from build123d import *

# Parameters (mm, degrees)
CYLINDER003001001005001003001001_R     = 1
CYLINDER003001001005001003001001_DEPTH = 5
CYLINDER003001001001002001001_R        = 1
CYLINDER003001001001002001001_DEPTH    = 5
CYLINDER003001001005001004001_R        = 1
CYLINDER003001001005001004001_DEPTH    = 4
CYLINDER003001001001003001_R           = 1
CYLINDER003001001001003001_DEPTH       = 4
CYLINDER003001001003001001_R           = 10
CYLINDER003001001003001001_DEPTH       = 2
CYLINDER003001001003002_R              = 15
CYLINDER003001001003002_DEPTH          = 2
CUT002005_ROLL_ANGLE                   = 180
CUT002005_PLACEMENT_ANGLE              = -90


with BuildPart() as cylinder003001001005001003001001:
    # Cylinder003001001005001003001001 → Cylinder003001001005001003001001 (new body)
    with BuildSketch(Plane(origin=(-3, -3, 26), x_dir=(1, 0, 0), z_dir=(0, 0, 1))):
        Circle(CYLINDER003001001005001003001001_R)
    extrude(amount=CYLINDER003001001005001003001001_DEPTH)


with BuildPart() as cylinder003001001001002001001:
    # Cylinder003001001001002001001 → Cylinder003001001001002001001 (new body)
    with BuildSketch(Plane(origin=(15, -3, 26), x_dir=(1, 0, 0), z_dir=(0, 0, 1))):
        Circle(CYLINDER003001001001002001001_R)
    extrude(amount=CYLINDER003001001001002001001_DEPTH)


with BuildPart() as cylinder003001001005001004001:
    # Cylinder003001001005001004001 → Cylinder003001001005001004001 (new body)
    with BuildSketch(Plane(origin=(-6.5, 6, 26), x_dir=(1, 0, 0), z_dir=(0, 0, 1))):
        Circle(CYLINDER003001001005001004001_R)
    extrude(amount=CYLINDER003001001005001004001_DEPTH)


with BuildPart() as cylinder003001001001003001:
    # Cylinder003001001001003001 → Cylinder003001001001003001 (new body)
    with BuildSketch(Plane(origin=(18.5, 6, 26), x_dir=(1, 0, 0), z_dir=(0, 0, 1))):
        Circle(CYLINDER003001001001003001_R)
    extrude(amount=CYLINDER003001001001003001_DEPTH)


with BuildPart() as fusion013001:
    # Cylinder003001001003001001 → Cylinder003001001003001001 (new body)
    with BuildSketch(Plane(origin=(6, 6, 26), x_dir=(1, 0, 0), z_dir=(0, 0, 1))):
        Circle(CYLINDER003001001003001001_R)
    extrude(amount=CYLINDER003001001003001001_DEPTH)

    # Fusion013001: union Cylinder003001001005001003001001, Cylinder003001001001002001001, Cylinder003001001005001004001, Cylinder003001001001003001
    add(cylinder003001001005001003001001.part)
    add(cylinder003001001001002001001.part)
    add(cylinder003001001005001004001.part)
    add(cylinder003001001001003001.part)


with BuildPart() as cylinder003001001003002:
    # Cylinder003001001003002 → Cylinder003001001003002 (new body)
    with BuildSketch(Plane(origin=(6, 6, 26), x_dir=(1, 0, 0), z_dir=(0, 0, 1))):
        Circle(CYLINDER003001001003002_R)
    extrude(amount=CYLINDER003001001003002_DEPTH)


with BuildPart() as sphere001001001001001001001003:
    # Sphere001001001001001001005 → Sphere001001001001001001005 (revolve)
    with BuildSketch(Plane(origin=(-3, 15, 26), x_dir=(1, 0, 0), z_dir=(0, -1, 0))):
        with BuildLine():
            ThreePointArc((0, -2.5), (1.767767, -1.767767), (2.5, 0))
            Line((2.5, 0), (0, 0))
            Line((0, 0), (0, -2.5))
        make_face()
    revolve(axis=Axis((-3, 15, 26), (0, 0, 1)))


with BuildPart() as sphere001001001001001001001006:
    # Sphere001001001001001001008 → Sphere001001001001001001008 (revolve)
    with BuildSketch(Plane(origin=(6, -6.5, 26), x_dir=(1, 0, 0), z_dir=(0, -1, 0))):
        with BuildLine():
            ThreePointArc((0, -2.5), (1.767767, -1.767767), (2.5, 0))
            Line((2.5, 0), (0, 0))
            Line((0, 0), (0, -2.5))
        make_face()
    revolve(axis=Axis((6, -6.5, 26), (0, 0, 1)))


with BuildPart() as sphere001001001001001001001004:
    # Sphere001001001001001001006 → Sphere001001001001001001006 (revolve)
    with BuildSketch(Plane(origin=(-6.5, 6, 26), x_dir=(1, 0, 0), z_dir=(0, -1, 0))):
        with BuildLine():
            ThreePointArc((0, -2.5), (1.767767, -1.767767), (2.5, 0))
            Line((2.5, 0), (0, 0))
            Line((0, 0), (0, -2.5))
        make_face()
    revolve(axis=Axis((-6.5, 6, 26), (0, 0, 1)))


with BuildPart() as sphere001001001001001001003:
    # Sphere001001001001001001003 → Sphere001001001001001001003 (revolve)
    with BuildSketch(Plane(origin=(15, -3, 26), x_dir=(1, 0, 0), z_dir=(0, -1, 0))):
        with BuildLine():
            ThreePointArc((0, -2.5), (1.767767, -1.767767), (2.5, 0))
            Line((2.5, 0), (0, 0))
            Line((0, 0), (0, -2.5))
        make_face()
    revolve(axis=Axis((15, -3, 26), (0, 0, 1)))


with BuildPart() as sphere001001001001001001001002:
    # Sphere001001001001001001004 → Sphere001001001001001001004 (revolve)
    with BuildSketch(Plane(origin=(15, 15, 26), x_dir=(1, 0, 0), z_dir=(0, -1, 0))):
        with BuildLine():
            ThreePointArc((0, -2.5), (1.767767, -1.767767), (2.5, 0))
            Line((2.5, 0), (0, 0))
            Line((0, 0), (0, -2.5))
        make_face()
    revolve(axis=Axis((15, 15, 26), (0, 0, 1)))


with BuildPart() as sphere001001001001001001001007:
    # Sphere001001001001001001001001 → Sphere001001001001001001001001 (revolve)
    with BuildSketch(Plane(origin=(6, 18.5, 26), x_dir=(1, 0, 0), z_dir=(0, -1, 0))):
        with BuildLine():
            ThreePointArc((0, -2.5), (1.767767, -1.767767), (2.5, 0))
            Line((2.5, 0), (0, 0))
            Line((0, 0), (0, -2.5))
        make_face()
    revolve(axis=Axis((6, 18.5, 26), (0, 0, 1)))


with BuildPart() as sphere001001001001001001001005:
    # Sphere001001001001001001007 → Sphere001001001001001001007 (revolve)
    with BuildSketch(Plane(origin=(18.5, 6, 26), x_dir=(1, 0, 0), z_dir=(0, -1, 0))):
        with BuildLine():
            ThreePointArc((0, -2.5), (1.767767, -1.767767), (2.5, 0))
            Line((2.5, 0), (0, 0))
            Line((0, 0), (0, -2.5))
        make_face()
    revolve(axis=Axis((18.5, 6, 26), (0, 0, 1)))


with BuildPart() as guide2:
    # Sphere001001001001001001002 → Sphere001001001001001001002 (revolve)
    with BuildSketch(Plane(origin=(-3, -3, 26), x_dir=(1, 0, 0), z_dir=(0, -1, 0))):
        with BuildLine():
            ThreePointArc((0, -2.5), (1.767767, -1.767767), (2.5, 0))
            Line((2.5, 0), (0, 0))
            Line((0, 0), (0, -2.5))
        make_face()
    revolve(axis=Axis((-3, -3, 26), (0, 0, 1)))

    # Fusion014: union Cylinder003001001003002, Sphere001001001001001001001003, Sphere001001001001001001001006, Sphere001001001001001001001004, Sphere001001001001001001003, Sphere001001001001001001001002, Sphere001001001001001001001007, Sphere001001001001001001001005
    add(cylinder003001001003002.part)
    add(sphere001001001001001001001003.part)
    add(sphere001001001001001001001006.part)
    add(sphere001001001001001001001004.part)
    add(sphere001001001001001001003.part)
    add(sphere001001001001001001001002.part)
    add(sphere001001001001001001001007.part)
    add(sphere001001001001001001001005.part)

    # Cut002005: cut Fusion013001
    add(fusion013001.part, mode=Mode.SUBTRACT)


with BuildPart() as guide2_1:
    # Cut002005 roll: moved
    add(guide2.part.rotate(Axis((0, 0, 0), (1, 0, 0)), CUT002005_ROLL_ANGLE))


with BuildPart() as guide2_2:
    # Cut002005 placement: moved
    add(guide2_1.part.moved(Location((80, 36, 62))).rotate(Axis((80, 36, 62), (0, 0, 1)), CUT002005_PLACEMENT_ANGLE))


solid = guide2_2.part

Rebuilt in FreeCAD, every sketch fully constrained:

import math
import FreeCAD as App
import Part
import Sketcher
Q = App.Units.Quantity

doc = App.newDocument("Part")
body = doc.addObject("PartDesign::Body", "Body")

# Sketch on XY plane
sketch1 = doc.addObject("Sketcher::SketchObject", "Sketch")
body.addObject(sketch1)
sketch1.AttachmentSupport = (doc.XY_Plane, [""])
sketch1.MapMode = "FlatFace"
sketch1.AttachmentOffset = App.Placement(App.Vector(0, 0, 26), App.Rotation())
sketch1.addGeometry(Part.Circle(App.Vector(-3, -3, 0), App.Vector(0, 0, 1), 1), False)
sketch1.addConstraint([
    Sketcher.Constraint("Diameter", 0, Q("2 mm")),
    Sketcher.Constraint("DistanceX", 0, 3, -1, 1, Q("3 mm")),
    Sketcher.Constraint("DistanceY", 0, 3, -1, 1, Q("3 mm")),
])
pad1 = doc.addObject("PartDesign::Pad", "Pad")
body.addObject(pad1)
pad1.Profile = sketch1
pad1.Length = 5
body2 = doc.addObject("PartDesign::Body", "Body001")

# Sketch on XY plane
sketch2 = doc.addObject("Sketcher::SketchObject", "Sketch001")
body2.addObject(sketch2)
sketch2.AttachmentSupport = (doc.getObject("XY_Plane001"), [""])
sketch2.MapMode = "FlatFace"
sketch2.AttachmentOffset = App.Placement(App.Vector(0, 0, 26), App.Rotation())
sketch2.addGeometry(Part.Circle(App.Vector(15, -3, 0), App.Vector(0, 0, 1), 1), False)
sketch2.addConstraint([
    Sketcher.Constraint("Diameter", 0, Q("2 mm")),
    Sketcher.Constraint("DistanceX", -1, 1, 0, 3, Q("15 mm")),
    Sketcher.Constraint("DistanceY", 0, 3, -1, 1, Q("3 mm")),
])
pad2 = doc.addObject("PartDesign::Pad", "Pad001")
body2.addObject(pad2)
pad2.Profile = sketch2
pad2.Length = 5
body3 = doc.addObject("PartDesign::Body", "Body002")

# Sketch on XY plane
sketch3 = doc.addObject("Sketcher::SketchObject", "Sketch002")
body3.addObject(sketch3)
sketch3.AttachmentSupport = (doc.getObject("XY_Plane002"), [""])
sketch3.MapMode = "FlatFace"
sketch3.AttachmentOffset = App.Placement(App.Vector(0, 0, 26), App.Rotation())
sketch3.addGeometry(Part.Circle(App.Vector(-6.5, 6, 0), App.Vector(0, 0, 1), 1), False)
sketch3.addConstraint([
    Sketcher.Constraint("Diameter", 0, Q("2 mm")),
    Sketcher.Constraint("DistanceY", -1, 1, 0, 3, Q("6 mm")),
    Sketcher.Constraint("DistanceX", 0, 3, -1, 1, Q("6.5 mm")),
])
pad3 = doc.addObject("PartDesign::Pad", "Pad002")
body3.addObject(pad3)
pad3.Profile = sketch3
pad3.Length = 4
body4 = doc.addObject("PartDesign::Body", "Body003")

# Sketch on XY plane
sketch4 = doc.addObject("Sketcher::SketchObject", "Sketch003")
body4.addObject(sketch4)
sketch4.AttachmentSupport = (doc.getObject("XY_Plane003"), [""])
sketch4.MapMode = "FlatFace"
sketch4.AttachmentOffset = App.Placement(App.Vector(0, 0, 26), App.Rotation())
sketch4.addGeometry(Part.Circle(App.Vector(18.5, 6, 0), App.Vector(0, 0, 1), 1), False)
sketch4.addConstraint([
    Sketcher.Constraint("Diameter", 0, Q("2 mm")),
    Sketcher.Constraint("DistanceY", -1, 1, 0, 3, Q("6 mm")),
    Sketcher.Constraint("DistanceX", -1, 1, 0, 3, Q("18.5 mm")),
])
pad4 = doc.addObject("PartDesign::Pad", "Pad003")
body4.addObject(pad4)
pad4.Profile = sketch4
pad4.Length = 4
body5 = doc.addObject("PartDesign::Body", "Body004")
body5.AllowCompound = True

# Sketch on XY plane
sketch5 = doc.addObject("Sketcher::SketchObject", "Sketch004")
body5.addObject(sketch5)
sketch5.AttachmentSupport = (doc.getObject("XY_Plane004"), [""])
sketch5.MapMode = "FlatFace"
sketch5.AttachmentOffset = App.Placement(App.Vector(0, 0, 26), App.Rotation())
sketch5.addGeometry(Part.Circle(App.Vector(6, 6, 0), App.Vector(0, 0, 1), 10), False)
sketch5.addConstraint([
    Sketcher.Constraint("Diameter", 0, Q("20 mm")),
    Sketcher.Constraint("DistanceX", -1, 1, 0, 3, Q("6 mm")),
    Sketcher.Constraint("DistanceY", -1, 1, 0, 3, Q("6 mm")),
])
pad5 = doc.addObject("PartDesign::Pad", "Pad004")
body5.addObject(pad5)
pad5.Profile = sketch5
pad5.Length = 2
doc.recompute()

boolean = doc.addObject("PartDesign::Boolean", "Boolean")
body5.addObject(boolean)
boolean.Type = "Fuse"
boolean.addObjects([body])
doc.recompute()

boolean2 = doc.addObject("PartDesign::Boolean", "Boolean001")
body5.addObject(boolean2)
boolean2.Type = "Fuse"
boolean2.addObjects([body2])
doc.recompute()

boolean3 = doc.addObject("PartDesign::Boolean", "Boolean002")
body5.addObject(boolean3)
boolean3.Type = "Fuse"
boolean3.addObjects([body3])
doc.recompute()

boolean4 = doc.addObject("PartDesign::Boolean", "Boolean003")
body5.addObject(boolean4)
boolean4.Type = "Fuse"
boolean4.addObjects([body4])
body6 = doc.addObject("PartDesign::Body", "Body005")

# Sketch on XY plane
sketch6 = doc.addObject("Sketcher::SketchObject", "Sketch005")
body6.addObject(sketch6)
sketch6.AttachmentSupport = (doc.getObject("XY_Plane005"), [""])
sketch6.MapMode = "FlatFace"
sketch6.AttachmentOffset = App.Placement(App.Vector(0, 0, 26), App.Rotation())
sketch6.addGeometry(Part.Circle(App.Vector(6, 6, 0), App.Vector(0, 0, 1), 15), False)
sketch6.addConstraint([
    Sketcher.Constraint("Diameter", 0, Q("30 mm")),
    Sketcher.Constraint("DistanceX", -1, 1, 0, 3, Q("6 mm")),
    Sketcher.Constraint("DistanceY", -1, 1, 0, 3, Q("6 mm")),
])
pad6 = doc.addObject("PartDesign::Pad", "Pad005")
body6.addObject(pad6)
pad6.Profile = sketch6
pad6.Length = 2
body7 = doc.addObject("PartDesign::Body", "Body006")

# Sketch on XZ plane
sketch7 = doc.addObject("Sketcher::SketchObject", "Sketch006")
body7.addObject(sketch7)
sketch7.AttachmentSupport = (doc.getObject("XZ_Plane006"), [""])
sketch7.MapMode = "FlatFace"
sketch7.AttachmentOffset = App.Placement(App.Vector(0, 0, -15), App.Rotation())
sketch7.addGeometry([
    Part.ArcOfCircle(Part.Circle(App.Vector(-3, 26, 0), App.Vector(0, 0, 1), 2.5), math.radians(-90), math.radians(0)),
    Part.LineSegment(App.Vector(-0.5, 26, 0), App.Vector(-3, 26, 0)),
    Part.LineSegment(App.Vector(-3, 26, 0), App.Vector(-3, 23.5, 0)),
], False)
sketch7.addGeometry(Part.LineSegment(App.Vector(-3, 23.5, 0), App.Vector(-3, 26, 0)), True)  # axis
sketch7.addConstraint([
    Sketcher.Constraint("Coincident", 0, 2, 1, 1),
    Sketcher.Constraint("Coincident", 1, 2, 2, 1),
    Sketcher.Constraint("Coincident", 2, 2, 0, 1),
    Sketcher.Constraint("Horizontal", 1),
    Sketcher.Constraint("Vertical", 2),
    Sketcher.Constraint("Vertical", 3),
    Sketcher.Constraint("Coincident", 1, 2, 0, 3),
    Sketcher.Constraint("Coincident", 3, 1, 2, 2),
    Sketcher.Constraint("Horizontal", 0, 2, 3, 2),
    Sketcher.Constraint("Radius", 0, Q("2.5 mm")),
    Sketcher.Constraint("DistanceX", 0, 3, -1, 1, Q("3 mm")),
    Sketcher.Constraint("DistanceY", -1, 1, 0, 3, Q("26 mm")),
])
revolution = doc.addObject("PartDesign::Revolution", "Revolution")
body7.addObject(revolution)
revolution.Profile = sketch7
revolution.ReferenceAxis = (sketch7, ["Axis0"])
revolution.Angle = 360
body8 = doc.addObject("PartDesign::Body", "Body007")

# Sketch on XZ plane
sketch8 = doc.addObject("Sketcher::SketchObject", "Sketch007")
body8.addObject(sketch8)
sketch8.AttachmentSupport = (doc.getObject("XZ_Plane007"), [""])
sketch8.MapMode = "FlatFace"
sketch8.AttachmentOffset = App.Placement(App.Vector(0, 0, 6.5), App.Rotation())
sketch8.addGeometry([
    Part.ArcOfCircle(Part.Circle(App.Vector(6, 26, 0), App.Vector(0, 0, 1), 2.5), math.radians(-90), math.radians(0)),
    Part.LineSegment(App.Vector(8.5, 26, 0), App.Vector(6, 26, 0)),
    Part.LineSegment(App.Vector(6, 26, 0), App.Vector(6, 23.5, 0)),
], False)
sketch8.addGeometry(Part.LineSegment(App.Vector(6, 23.5, 0), App.Vector(6, 26, 0)), True)  # axis
sketch8.addConstraint([
    Sketcher.Constraint("Coincident", 0, 2, 1, 1),
    Sketcher.Constraint("Coincident", 1, 2, 2, 1),
    Sketcher.Constraint("Coincident", 2, 2, 0, 1),
    Sketcher.Constraint("Horizontal", 1),
    Sketcher.Constraint("Vertical", 2),
    Sketcher.Constraint("Vertical", 3),
    Sketcher.Constraint("Coincident", 1, 2, 0, 3),
    Sketcher.Constraint("Coincident", 3, 1, 2, 2),
    Sketcher.Constraint("Horizontal", 0, 2, 3, 2),
    Sketcher.Constraint("Radius", 0, Q("2.5 mm")),
    Sketcher.Constraint("DistanceX", -1, 1, 0, 3, Q("6 mm")),
    Sketcher.Constraint("DistanceY", -1, 1, 0, 3, Q("26 mm")),
])
revolution2 = doc.addObject("PartDesign::Revolution", "Revolution001")
body8.addObject(revolution2)
revolution2.Profile = sketch8
revolution2.ReferenceAxis = (sketch8, ["Axis0"])
revolution2.Angle = 360
body9 = doc.addObject("PartDesign::Body", "Body008")

# Sketch on XZ plane
sketch9 = doc.addObject("Sketcher::SketchObject", "Sketch008")
body9.addObject(sketch9)
sketch9.AttachmentSupport = (doc.getObject("XZ_Plane008"), [""])
sketch9.MapMode = "FlatFace"
sketch9.AttachmentOffset = App.Placement(App.Vector(0, 0, -6), App.Rotation())
sketch9.addGeometry([
    Part.ArcOfCircle(Part.Circle(App.Vector(-6.5, 26, 0), App.Vector(0, 0, 1), 2.5), math.radians(-90), math.radians(0)),
    Part.LineSegment(App.Vector(-4, 26, 0), App.Vector(-6.5, 26, 0)),
    Part.LineSegment(App.Vector(-6.5, 26, 0), App.Vector(-6.5, 23.5, 0)),
], False)
sketch9.addGeometry(Part.LineSegment(App.Vector(-6.5, 23.5, 0), App.Vector(-6.5, 26, 0)), True)  # axis
sketch9.addConstraint([
    Sketcher.Constraint("Coincident", 0, 2, 1, 1),
    Sketcher.Constraint("Coincident", 1, 2, 2, 1),
    Sketcher.Constraint("Coincident", 2, 2, 0, 1),
    Sketcher.Constraint("Horizontal", 1),
    Sketcher.Constraint("Vertical", 2),
    Sketcher.Constraint("Vertical", 3),
    Sketcher.Constraint("Coincident", 1, 2, 0, 3),
    Sketcher.Constraint("Coincident", 3, 1, 2, 2),
    Sketcher.Constraint("Horizontal", 0, 2, 3, 2),
    Sketcher.Constraint("Radius", 0, Q("2.5 mm")),
    Sketcher.Constraint("DistanceY", -1, 1, 0, 3, Q("26 mm")),
    Sketcher.Constraint("DistanceX", 0, 2, -1, 1, Q("4 mm")),
])
revolution3 = doc.addObject("PartDesign::Revolution", "Revolution002")
body9.addObject(revolution3)
revolution3.Profile = sketch9
revolution3.ReferenceAxis = (sketch9, ["Axis0"])
revolution3.Angle = 360
body10 = doc.addObject("PartDesign::Body", "Body009")

# Sketch on XZ plane
sketch10 = doc.addObject("Sketcher::SketchObject", "Sketch009")
body10.addObject(sketch10)
sketch10.AttachmentSupport = (doc.getObject("XZ_Plane009"), [""])
sketch10.MapMode = "FlatFace"
sketch10.AttachmentOffset = App.Placement(App.Vector(0, 0, 3), App.Rotation())
sketch10.addGeometry([
    Part.ArcOfCircle(Part.Circle(App.Vector(15, 26, 0), App.Vector(0, 0, 1), 2.5), math.radians(-90), math.radians(0)),
    Part.LineSegment(App.Vector(17.5, 26, 0), App.Vector(15, 26, 0)),
    Part.LineSegment(App.Vector(15, 26, 0), App.Vector(15, 23.5, 0)),
], False)
sketch10.addGeometry(Part.LineSegment(App.Vector(15, 23.5, 0), App.Vector(15, 26, 0)), True)  # axis
sketch10.addConstraint([
    Sketcher.Constraint("Coincident", 0, 2, 1, 1),
    Sketcher.Constraint("Coincident", 1, 2, 2, 1),
    Sketcher.Constraint("Coincident", 2, 2, 0, 1),
    Sketcher.Constraint("Horizontal", 1),
    Sketcher.Constraint("Vertical", 2),
    Sketcher.Constraint("Vertical", 3),
    Sketcher.Constraint("Coincident", 1, 2, 0, 3),
    Sketcher.Constraint("Coincident", 3, 1, 2, 2),
    Sketcher.Constraint("Horizontal", 0, 2, 3, 2),
    Sketcher.Constraint("Radius", 0, Q("2.5 mm")),
    Sketcher.Constraint("DistanceX", -1, 1, 0, 3, Q("15 mm")),
    Sketcher.Constraint("DistanceY", -1, 1, 0, 3, Q("26 mm")),
])
revolution4 = doc.addObject("PartDesign::Revolution", "Revolution003")
body10.addObject(revolution4)
revolution4.Profile = sketch10
revolution4.ReferenceAxis = (sketch10, ["Axis0"])
revolution4.Angle = 360
body11 = doc.addObject("PartDesign::Body", "Body010")

# Sketch on XZ plane
sketch11 = doc.addObject("Sketcher::SketchObject", "Sketch010")
body11.addObject(sketch11)
sketch11.AttachmentSupport = (doc.getObject("XZ_Plane010"), [""])
sketch11.MapMode = "FlatFace"
sketch11.AttachmentOffset = App.Placement(App.Vector(0, 0, -15), App.Rotation())
sketch11.addGeometry([
    Part.ArcOfCircle(Part.Circle(App.Vector(15, 26, 0), App.Vector(0, 0, 1), 2.5), math.radians(-90), math.radians(0)),
    Part.LineSegment(App.Vector(17.5, 26, 0), App.Vector(15, 26, 0)),
    Part.LineSegment(App.Vector(15, 26, 0), App.Vector(15, 23.5, 0)),
], False)
sketch11.addGeometry(Part.LineSegment(App.Vector(15, 23.5, 0), App.Vector(15, 26, 0)), True)  # axis
sketch11.addConstraint([
    Sketcher.Constraint("Coincident", 0, 2, 1, 1),
    Sketcher.Constraint("Coincident", 1, 2, 2, 1),
    Sketcher.Constraint("Coincident", 2, 2, 0, 1),
    Sketcher.Constraint("Horizontal", 1),
    Sketcher.Constraint("Vertical", 2),
    Sketcher.Constraint("Vertical", 3),
    Sketcher.Constraint("Coincident", 1, 2, 0, 3),
    Sketcher.Constraint("Coincident", 3, 1, 2, 2),
    Sketcher.Constraint("Horizontal", 0, 2, 3, 2),
    Sketcher.Constraint("Radius", 0, Q("2.5 mm")),
    Sketcher.Constraint("DistanceX", -1, 1, 0, 3, Q("15 mm")),
    Sketcher.Constraint("DistanceY", -1, 1, 0, 3, Q("26 mm")),
])
revolution5 = doc.addObject("PartDesign::Revolution", "Revolution004")
body11.addObject(revolution5)
revolution5.Profile = sketch11
revolution5.ReferenceAxis = (sketch11, ["Axis0"])
revolution5.Angle = 360
body12 = doc.addObject("PartDesign::Body", "Body011")

# Sketch on XZ plane
sketch12 = doc.addObject("Sketcher::SketchObject", "Sketch011")
body12.addObject(sketch12)
sketch12.AttachmentSupport = (doc.getObject("XZ_Plane011"), [""])
sketch12.MapMode = "FlatFace"
sketch12.AttachmentOffset = App.Placement(App.Vector(0, 0, -18.5), App.Rotation())
sketch12.addGeometry([
    Part.ArcOfCircle(Part.Circle(App.Vector(6, 26, 0), App.Vector(0, 0, 1), 2.5), math.radians(-90), math.radians(0)),
    Part.LineSegment(App.Vector(8.5, 26, 0), App.Vector(6, 26, 0)),
    Part.LineSegment(App.Vector(6, 26, 0), App.Vector(6, 23.5, 0)),
], False)
sketch12.addGeometry(Part.LineSegment(App.Vector(6, 23.5, 0), App.Vector(6, 26, 0)), True)  # axis
sketch12.addConstraint([
    Sketcher.Constraint("Coincident", 0, 2, 1, 1),
    Sketcher.Constraint("Coincident", 1, 2, 2, 1),
    Sketcher.Constraint("Coincident", 2, 2, 0, 1),
    Sketcher.Constraint("Horizontal", 1),
    Sketcher.Constraint("Vertical", 2),
    Sketcher.Constraint("Vertical", 3),
    Sketcher.Constraint("Coincident", 1, 2, 0, 3),
    Sketcher.Constraint("Coincident", 3, 1, 2, 2),
    Sketcher.Constraint("Horizontal", 0, 2, 3, 2),
    Sketcher.Constraint("Radius", 0, Q("2.5 mm")),
    Sketcher.Constraint("DistanceX", -1, 1, 0, 3, Q("6 mm")),
    Sketcher.Constraint("DistanceY", -1, 1, 0, 3, Q("26 mm")),
])
revolution6 = doc.addObject("PartDesign::Revolution", "Revolution005")
body12.addObject(revolution6)
revolution6.Profile = sketch12
revolution6.ReferenceAxis = (sketch12, ["Axis0"])
revolution6.Angle = 360
body13 = doc.addObject("PartDesign::Body", "Body012")

# Sketch on XZ plane
sketch13 = doc.addObject("Sketcher::SketchObject", "Sketch012")
body13.addObject(sketch13)
sketch13.AttachmentSupport = (doc.getObject("XZ_Plane012"), [""])
sketch13.MapMode = "FlatFace"
sketch13.AttachmentOffset = App.Placement(App.Vector(0, 0, -6), App.Rotation())
sketch13.addGeometry([
    Part.ArcOfCircle(Part.Circle(App.Vector(18.5, 26, 0), App.Vector(0, 0, 1), 2.5), math.radians(-90), math.radians(0)),
    Part.LineSegment(App.Vector(21, 26, 0), App.Vector(18.5, 26, 0)),
    Part.LineSegment(App.Vector(18.5, 26, 0), App.Vector(18.5, 23.5, 0)),
], False)
sketch13.addGeometry(Part.LineSegment(App.Vector(18.5, 23.5, 0), App.Vector(18.5, 26, 0)), True)  # axis
sketch13.addConstraint([
    Sketcher.Constraint("Coincident", 0, 2, 1, 1),
    Sketcher.Constraint("Coincident", 1, 2, 2, 1),
    Sketcher.Constraint("Coincident", 2, 2, 0, 1),
    Sketcher.Constraint("Horizontal", 1),
    Sketcher.Constraint("Vertical", 2),
    Sketcher.Constraint("Vertical", 3),
    Sketcher.Constraint("Coincident", 1, 2, 0, 3),
    Sketcher.Constraint("Coincident", 3, 1, 2, 2),
    Sketcher.Constraint("Horizontal", 0, 2, 3, 2),
    Sketcher.Constraint("Radius", 0, Q("2.5 mm")),
    Sketcher.Constraint("DistanceY", -1, 1, 0, 3, Q("26 mm")),
    Sketcher.Constraint("DistanceX", -1, 1, 0, 2, Q("21 mm")),
])
revolution7 = doc.addObject("PartDesign::Revolution", "Revolution006")
body13.addObject(revolution7)
revolution7.Profile = sketch13
revolution7.ReferenceAxis = (sketch13, ["Axis0"])
revolution7.Angle = 360
body14 = doc.addObject("PartDesign::Body", "Body013")

# Sketch on XZ plane
sketch14 = doc.addObject("Sketcher::SketchObject", "Sketch013")
body14.addObject(sketch14)
sketch14.AttachmentSupport = (doc.getObject("XZ_Plane013"), [""])
sketch14.MapMode = "FlatFace"
sketch14.AttachmentOffset = App.Placement(App.Vector(0, 0, 3), App.Rotation())
sketch14.addGeometry([
    Part.ArcOfCircle(Part.Circle(App.Vector(-3, 26, 0), App.Vector(0, 0, 1), 2.5), math.radians(-90), math.radians(0)),
    Part.LineSegment(App.Vector(-0.5, 26, 0), App.Vector(-3, 26, 0)),
    Part.LineSegment(App.Vector(-3, 26, 0), App.Vector(-3, 23.5, 0)),
], False)
sketch14.addGeometry(Part.LineSegment(App.Vector(-3, 23.5, 0), App.Vector(-3, 26, 0)), True)  # axis
sketch14.addConstraint([
    Sketcher.Constraint("Coincident", 0, 2, 1, 1),
    Sketcher.Constraint("Coincident", 1, 2, 2, 1),
    Sketcher.Constraint("Coincident", 2, 2, 0, 1),
    Sketcher.Constraint("Horizontal", 1),
    Sketcher.Constraint("Vertical", 2),
    Sketcher.Constraint("Vertical", 3),
    Sketcher.Constraint("Coincident", 1, 2, 0, 3),
    Sketcher.Constraint("Coincident", 3, 1, 2, 2),
    Sketcher.Constraint("Horizontal", 0, 2, 3, 2),
    Sketcher.Constraint("Radius", 0, Q("2.5 mm")),
    Sketcher.Constraint("DistanceX", 0, 3, -1, 1, Q("3 mm")),
    Sketcher.Constraint("DistanceY", -1, 1, 0, 3, Q("26 mm")),
])
revolution8 = doc.addObject("PartDesign::Revolution", "Revolution007")
body14.addObject(revolution8)
revolution8.Profile = sketch14
revolution8.ReferenceAxis = (sketch14, ["Axis0"])
revolution8.Angle = 360
doc.recompute()

boolean5 = doc.addObject("PartDesign::Boolean", "Boolean004")
body14.addObject(boolean5)
boolean5.Type = "Fuse"
boolean5.addObjects([body6])
doc.recompute()

boolean6 = doc.addObject("PartDesign::Boolean", "Boolean005")
body14.addObject(boolean6)
boolean6.Type = "Fuse"
boolean6.addObjects([body7])
doc.recompute()

boolean7 = doc.addObject("PartDesign::Boolean", "Boolean006")
body14.addObject(boolean7)
boolean7.Type = "Fuse"
boolean7.addObjects([body8])
doc.recompute()

boolean8 = doc.addObject("PartDesign::Boolean", "Boolean007")
body14.addObject(boolean8)
boolean8.Type = "Fuse"
boolean8.addObjects([body9])
doc.recompute()

boolean9 = doc.addObject("PartDesign::Boolean", "Boolean008")
body14.addObject(boolean9)
boolean9.Type = "Fuse"
boolean9.addObjects([body10])
doc.recompute()

boolean10 = doc.addObject("PartDesign::Boolean", "Boolean009")
body14.addObject(boolean10)
boolean10.Type = "Fuse"
boolean10.addObjects([body11])
doc.recompute()

boolean11 = doc.addObject("PartDesign::Boolean", "Boolean010")
body14.addObject(boolean11)
boolean11.Type = "Fuse"
boolean11.addObjects([body12])
doc.recompute()

boolean12 = doc.addObject("PartDesign::Boolean", "Boolean011")
body14.addObject(boolean12)
boolean12.Type = "Fuse"
boolean12.addObjects([body13])
doc.recompute()

boolean13 = doc.addObject("PartDesign::Boolean", "Boolean012")
body14.addObject(boolean13)
boolean13.Type = "Cut"
boolean13.addObjects([body5])
body15 = doc.addObject("PartDesign::Body", "Body014")
doc.recompute()

body14.Placement = App.Placement(App.Vector(0, 0, 0), App.Rotation(App.Vector(1, 0, 0), 180))
boolean14 = doc.addObject("PartDesign::Boolean", "Boolean013")
body15.addObject(boolean14)
boolean14.Type = "Fuse"
boolean14.addObjects([body14])
body16 = doc.addObject("PartDesign::Body", "Body015")
doc.recompute()

body15.Placement = App.Placement(App.Vector(80, 36, 62), App.Rotation(App.Vector(0, 0, 1), 270))
boolean15 = doc.addObject("PartDesign::Boolean", "Boolean014")
body16.addObject(boolean15)
boolean15.Type = "Fuse"
boolean15.addObjects([body15])

doc.recompute()
